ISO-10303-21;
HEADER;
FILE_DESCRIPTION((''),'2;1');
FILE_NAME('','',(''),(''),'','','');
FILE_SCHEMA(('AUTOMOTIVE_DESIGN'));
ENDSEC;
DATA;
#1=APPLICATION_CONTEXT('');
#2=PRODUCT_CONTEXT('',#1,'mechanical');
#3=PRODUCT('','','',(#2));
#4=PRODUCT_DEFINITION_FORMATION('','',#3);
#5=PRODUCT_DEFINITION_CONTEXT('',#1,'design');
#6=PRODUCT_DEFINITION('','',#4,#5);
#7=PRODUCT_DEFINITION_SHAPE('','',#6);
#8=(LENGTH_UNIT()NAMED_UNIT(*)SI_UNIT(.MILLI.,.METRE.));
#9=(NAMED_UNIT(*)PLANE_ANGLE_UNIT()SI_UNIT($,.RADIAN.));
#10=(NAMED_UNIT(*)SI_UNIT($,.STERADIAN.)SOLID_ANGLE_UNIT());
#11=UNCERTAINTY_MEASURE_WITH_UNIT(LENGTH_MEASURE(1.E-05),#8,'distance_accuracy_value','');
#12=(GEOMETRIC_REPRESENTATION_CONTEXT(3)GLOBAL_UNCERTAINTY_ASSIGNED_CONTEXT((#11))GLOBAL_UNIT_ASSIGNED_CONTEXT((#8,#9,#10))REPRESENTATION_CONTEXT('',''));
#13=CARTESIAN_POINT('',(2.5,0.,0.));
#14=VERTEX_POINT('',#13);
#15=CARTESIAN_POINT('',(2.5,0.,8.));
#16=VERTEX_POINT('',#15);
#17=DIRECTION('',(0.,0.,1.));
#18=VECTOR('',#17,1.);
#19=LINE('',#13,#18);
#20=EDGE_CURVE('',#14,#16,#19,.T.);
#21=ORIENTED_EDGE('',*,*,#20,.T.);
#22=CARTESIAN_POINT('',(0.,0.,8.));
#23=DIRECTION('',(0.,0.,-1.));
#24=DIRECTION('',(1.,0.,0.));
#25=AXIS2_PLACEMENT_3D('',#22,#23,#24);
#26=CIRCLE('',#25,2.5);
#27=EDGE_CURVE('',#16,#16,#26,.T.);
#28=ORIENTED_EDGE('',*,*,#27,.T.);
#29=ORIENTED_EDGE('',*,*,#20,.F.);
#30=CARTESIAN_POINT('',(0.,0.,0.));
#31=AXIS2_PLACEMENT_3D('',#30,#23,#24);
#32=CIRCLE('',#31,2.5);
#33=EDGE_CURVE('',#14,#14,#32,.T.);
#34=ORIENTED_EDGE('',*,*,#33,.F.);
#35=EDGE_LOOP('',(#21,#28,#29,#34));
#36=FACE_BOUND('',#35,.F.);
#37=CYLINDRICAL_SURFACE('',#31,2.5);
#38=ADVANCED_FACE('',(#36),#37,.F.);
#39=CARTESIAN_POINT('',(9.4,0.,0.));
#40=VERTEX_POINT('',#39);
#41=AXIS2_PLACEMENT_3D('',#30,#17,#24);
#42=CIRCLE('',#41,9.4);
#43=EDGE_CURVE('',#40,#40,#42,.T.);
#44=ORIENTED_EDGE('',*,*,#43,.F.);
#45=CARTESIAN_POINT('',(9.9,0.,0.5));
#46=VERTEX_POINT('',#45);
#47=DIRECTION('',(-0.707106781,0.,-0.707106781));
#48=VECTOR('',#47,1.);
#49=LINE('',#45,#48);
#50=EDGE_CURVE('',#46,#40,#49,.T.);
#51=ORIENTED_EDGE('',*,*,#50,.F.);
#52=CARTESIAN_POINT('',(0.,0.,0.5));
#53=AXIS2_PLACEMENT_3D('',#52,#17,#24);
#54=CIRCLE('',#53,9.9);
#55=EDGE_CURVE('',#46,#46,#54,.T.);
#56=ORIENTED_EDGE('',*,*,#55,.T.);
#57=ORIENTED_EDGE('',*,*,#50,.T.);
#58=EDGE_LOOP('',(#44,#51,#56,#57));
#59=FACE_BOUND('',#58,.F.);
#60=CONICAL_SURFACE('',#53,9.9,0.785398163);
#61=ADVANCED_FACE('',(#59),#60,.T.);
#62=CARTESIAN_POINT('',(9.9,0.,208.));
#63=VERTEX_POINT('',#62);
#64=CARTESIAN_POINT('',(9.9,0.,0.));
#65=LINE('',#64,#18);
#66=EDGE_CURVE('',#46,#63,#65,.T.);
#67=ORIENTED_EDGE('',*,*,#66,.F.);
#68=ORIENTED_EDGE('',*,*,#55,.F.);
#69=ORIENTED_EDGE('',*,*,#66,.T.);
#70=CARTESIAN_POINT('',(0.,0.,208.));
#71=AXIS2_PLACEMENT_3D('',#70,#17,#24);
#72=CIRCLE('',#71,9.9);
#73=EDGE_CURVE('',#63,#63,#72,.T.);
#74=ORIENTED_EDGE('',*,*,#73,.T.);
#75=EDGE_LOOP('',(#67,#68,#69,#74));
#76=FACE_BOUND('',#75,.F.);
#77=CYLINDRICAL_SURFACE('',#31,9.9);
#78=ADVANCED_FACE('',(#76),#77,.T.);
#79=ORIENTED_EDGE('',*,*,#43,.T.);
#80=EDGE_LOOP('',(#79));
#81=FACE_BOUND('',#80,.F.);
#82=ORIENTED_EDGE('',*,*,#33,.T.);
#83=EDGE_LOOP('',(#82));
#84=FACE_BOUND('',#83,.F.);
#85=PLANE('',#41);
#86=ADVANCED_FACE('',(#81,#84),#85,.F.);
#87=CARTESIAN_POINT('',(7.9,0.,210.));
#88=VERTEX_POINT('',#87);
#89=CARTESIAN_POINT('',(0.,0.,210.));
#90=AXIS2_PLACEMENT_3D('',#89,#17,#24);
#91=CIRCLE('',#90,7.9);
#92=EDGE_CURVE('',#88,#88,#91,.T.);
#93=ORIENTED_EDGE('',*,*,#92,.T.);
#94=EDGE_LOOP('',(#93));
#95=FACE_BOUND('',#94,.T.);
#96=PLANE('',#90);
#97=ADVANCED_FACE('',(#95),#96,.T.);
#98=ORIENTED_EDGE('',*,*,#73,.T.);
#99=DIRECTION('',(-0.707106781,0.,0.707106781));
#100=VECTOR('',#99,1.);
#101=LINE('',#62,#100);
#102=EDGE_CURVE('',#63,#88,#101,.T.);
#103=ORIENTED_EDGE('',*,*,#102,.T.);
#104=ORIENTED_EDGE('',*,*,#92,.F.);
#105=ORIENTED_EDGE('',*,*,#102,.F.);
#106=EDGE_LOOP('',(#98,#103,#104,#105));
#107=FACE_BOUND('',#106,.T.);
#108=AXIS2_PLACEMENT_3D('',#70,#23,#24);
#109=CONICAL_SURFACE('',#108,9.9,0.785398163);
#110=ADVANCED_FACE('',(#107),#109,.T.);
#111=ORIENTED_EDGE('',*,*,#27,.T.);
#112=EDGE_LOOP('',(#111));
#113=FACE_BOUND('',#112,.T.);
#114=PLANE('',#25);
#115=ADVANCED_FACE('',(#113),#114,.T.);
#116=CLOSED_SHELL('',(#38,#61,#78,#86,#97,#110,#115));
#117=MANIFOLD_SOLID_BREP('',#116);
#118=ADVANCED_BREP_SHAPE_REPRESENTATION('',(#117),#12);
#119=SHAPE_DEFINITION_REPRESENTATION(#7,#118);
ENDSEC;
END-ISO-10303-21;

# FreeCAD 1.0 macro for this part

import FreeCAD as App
import Part
import Sketcher

V = App.Vector


def edges_at(feature, points):
    """Names of the edges that pass closest to the given points."""
    edges = feature.Shape.Edges
    near = lambda p: min(range(len(edges)), key=lambda i: edges[i].distToShape(Part.Vertex(*p))[0])
    return sorted({f"Edge{near(p) + 1}" for p in points})

doc = App.newDocument("Part")
body = doc.addObject("PartDesign::Body", "Body")

# Sketch on XY plane
sketch1 = doc.addObject("Sketcher::SketchObject", "Sketch")
body.addObject(sketch1)
sketch1.AttachmentSupport = (doc.XY_Plane, [""])
sketch1.MapMode = "FlatFace"
sketch1.addGeometry(Part.Circle(V(0, 0, 0), V(0, 0, 1), 10), False)
sketch1.addConstraint(Sketcher.Constraint("Coincident", 0, 3, -1, 1))
sketch1.addConstraint(Sketcher.Constraint("Diameter", 0, 19.8))
pad1 = doc.addObject("PartDesign::Pad", "Pad")
body.addObject(pad1)
pad1.Profile = sketch1
pad1.Length = 210
doc.recompute()

chamfer = doc.addObject("PartDesign::Chamfer", "Chamfer")
body.addObject(chamfer)
chamfer.Base = (pad1, edges_at(pad1, [(-9.9, 0, 210)]))
chamfer.Size = 2

# Sketch on XY plane
sketch2 = doc.addObject("Sketcher::SketchObject", "Sketch001")
body.addObject(sketch2)
sketch2.AttachmentSupport = (doc.XY_Plane, [""])
sketch2.MapMode = "FlatFace"
sketch2.addGeometry(Part.Circle(V(0, 0, 0), V(0, 0, 1), 2.5), False)
sketch2.addConstraint(Sketcher.Constraint("Coincident", 0, 3, -1, 1))
sketch2.addConstraint(Sketcher.Constraint("Diameter", 0, 5.0))
pocket1 = doc.addObject("PartDesign::Pocket", "Pocket")
body.addObject(pocket1)
pocket1.Profile = sketch2
pocket1.Length = 8
pocket1.Reversed = True
doc.recompute()

chamfer2 = doc.addObject("PartDesign::Chamfer", "Chamfer001")
body.addObject(chamfer2)
chamfer2.Base = (pocket1, edges_at(pocket1, [(-9.9, 0, 0)]))
chamfer2.Size = 0.5

doc.recompute()
